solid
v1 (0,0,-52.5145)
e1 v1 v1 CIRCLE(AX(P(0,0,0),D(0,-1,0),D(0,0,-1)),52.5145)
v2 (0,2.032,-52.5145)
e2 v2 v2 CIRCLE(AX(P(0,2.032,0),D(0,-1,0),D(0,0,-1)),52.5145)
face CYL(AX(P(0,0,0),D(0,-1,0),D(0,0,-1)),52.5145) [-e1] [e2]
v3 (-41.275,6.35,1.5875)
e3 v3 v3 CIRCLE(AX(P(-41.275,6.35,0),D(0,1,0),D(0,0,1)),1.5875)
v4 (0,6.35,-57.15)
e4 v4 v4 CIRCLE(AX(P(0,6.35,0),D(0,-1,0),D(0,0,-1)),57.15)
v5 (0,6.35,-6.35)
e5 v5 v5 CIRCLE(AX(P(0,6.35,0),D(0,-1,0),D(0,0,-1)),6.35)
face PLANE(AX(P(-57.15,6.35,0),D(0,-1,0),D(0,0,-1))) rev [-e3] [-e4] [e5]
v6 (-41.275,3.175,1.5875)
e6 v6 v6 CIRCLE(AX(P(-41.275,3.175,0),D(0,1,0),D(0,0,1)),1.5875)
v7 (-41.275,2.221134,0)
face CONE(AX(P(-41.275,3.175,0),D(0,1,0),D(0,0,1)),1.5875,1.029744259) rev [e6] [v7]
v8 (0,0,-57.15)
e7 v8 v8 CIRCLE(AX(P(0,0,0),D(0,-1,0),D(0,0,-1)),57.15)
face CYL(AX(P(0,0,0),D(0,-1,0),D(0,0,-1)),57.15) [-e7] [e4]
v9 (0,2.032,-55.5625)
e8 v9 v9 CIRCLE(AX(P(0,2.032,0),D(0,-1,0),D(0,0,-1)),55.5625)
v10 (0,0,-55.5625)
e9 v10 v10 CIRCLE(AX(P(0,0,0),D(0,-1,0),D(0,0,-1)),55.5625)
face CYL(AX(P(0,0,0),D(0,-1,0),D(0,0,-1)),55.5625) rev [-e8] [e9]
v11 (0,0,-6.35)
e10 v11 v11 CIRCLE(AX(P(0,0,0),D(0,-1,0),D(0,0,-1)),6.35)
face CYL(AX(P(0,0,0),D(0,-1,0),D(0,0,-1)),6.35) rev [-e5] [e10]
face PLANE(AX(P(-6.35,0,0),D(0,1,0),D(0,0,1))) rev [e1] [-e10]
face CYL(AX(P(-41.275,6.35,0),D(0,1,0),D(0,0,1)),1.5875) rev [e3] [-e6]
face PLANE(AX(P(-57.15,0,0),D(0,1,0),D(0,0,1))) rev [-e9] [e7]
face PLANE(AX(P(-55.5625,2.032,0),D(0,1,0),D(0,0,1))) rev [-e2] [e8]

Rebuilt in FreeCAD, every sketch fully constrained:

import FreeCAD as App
import Part
import Sketcher
Q = App.Units.Quantity


def add_polygon(sketch, points):
    """Adds a closed chain of lines whose ends are joined by coincident constraints."""
    first, n = sketch.GeometryCount, len(points)
    for a, b in zip(points, points[1:] + points[:1]):
        sketch.addGeometry(Part.LineSegment(App.Vector(*a, 0), App.Vector(*b, 0)), False)
    for i in range(n):
        sketch.addConstraint(Sketcher.Constraint("Coincident", first + i, 2, first + (i + 1) % n, 1))

doc = App.newDocument("Part")
body = doc.addObject("PartDesign::Body", "Body")

# Sketch on XY plane
sketch1 = body.newObject("Sketcher::SketchObject", "Sketch")
sketch1.AttachmentSupport = (doc.getObject("XY_Plane"), [""])
sketch1.MapMode = "FlatFace"
add_polygon(sketch1, [(-52.5, 0), (-6.3, 0), (-6.3, 6.3), (-57.1, 6.3), (-57.1, 0), (-55.6, 0), (-55.6, 2), (-52.5, 2)])  # lines 0-7
sketch1.addConstraint([
    Sketcher.Constraint("Horizontal", 0),
    Sketcher.Constraint("Vertical", 1),
    Sketcher.Constraint("Horizontal", 2),
    Sketcher.Constraint("Vertical", 3),
    Sketcher.Constraint("Horizontal", 4),
    Sketcher.Constraint("Vertical", 5),
    Sketcher.Constraint("Horizontal", 6),
    Sketcher.Constraint("Vertical", 7),
    Sketcher.Constraint("PointOnObject", 0, 2, -1),
    Sketcher.Constraint("PointOnObject", 3, 2, -1),
    Sketcher.Constraint("DistanceX", 2, 2, 2, 1, Q("2 in")),
    Sketcher.Constraint("DistanceX", 6, 1, 6, 2, Q("0.12 in")),
    Sketcher.Constraint("DistanceY", 1, 1, 1, 2, Q("0.25 in")),
    Sketcher.Constraint("DistanceY", 5, 1, 5, 2, Q("0.08 in")),
    Sketcher.Constraint("DistanceX", 4, 1, 4, 2, Q("0.0625 in")),
    Sketcher.Constraint("DistanceX", 0, 2, -1, 1, Q("0.25 in")),
])
revolution = body.newObject("PartDesign::Revolution", "Revolution")
revolution.Profile = sketch1
revolution.ReferenceAxis = (sketch1, ["V_Axis"])
revolution.Angle = 360

# Sketch on XZ plane
sketch2 = body.newObject("Sketcher::SketchObject", "Sketch001")
sketch2.AttachmentSupport = (doc.getObject("XZ_Plane"), [""])
sketch2.MapMode = "FlatFace"
sketch2.AttachmentOffset = App.Placement(App.Vector(0, 0, -0.25 * 25.4), App.Rotation())
sketch2.addGeometry(Part.Circle(App.Vector(-41.3, 0, 0), App.Vector(0, 0, 1), 1.6), False)
sketch2.addConstraint([
    Sketcher.Constraint("PointOnObject", 0, 3, -1),
    Sketcher.Constraint("Diameter", 0, Q("0.125 in")),
    Sketcher.Constraint("DistanceX", 0, 3, -1, 1, Q("1.625 in")),
])
doc.recompute()
hole = body.newObject("PartDesign::Hole", "Hole")
hole.Profile = sketch2
hole.ThreadType = "None"
hole.Diameter = Q("0.125 in")
hole.DepthType = "Dimension"
hole.Depth = Q("0.125 in")
hole.DrillPoint = "Angled"
hole.DrillPointAngle = 118
hole.Reversed = True

doc.recompute()
